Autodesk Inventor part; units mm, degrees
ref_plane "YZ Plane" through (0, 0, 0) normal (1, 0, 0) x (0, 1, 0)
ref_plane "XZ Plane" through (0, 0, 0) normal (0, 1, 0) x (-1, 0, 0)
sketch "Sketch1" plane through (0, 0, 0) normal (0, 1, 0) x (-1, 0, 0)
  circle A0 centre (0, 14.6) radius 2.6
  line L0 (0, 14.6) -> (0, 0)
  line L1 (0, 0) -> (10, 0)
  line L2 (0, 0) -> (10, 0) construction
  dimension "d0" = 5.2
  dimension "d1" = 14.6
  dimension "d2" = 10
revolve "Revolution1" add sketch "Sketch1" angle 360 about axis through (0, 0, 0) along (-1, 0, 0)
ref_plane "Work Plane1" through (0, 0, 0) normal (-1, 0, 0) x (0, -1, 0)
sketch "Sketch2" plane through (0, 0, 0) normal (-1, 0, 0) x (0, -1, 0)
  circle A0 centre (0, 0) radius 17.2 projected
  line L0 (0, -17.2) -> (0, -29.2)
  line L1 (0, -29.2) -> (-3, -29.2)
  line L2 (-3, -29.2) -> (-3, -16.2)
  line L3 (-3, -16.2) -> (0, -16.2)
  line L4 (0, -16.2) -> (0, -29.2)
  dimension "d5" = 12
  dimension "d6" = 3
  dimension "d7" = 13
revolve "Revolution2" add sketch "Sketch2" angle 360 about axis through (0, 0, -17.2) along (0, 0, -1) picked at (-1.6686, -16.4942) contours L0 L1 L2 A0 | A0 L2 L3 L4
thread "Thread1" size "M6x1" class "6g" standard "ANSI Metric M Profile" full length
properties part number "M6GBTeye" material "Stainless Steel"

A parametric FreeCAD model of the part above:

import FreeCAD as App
import Part
import Sketcher

V = App.Vector
Q = App.Units.Quantity


def add_polygon(sketch, points):
    """Adds a closed chain of lines whose ends are joined by coincident constraints."""
    first, n = sketch.GeometryCount, len(points)
    for a, b in zip(points, points[1:] + points[:1]):
        sketch.addGeometry(Part.LineSegment(App.Vector(*a, 0), App.Vector(*b, 0)), False)
    for i in range(n):
        sketch.addConstraint(Sketcher.Constraint("Coincident", first + i, 2, first + (i + 1) % n, 1))

doc = App.newDocument("Part")
params = doc.addObject("Spreadsheet::Sheet", "Params")
for row, (alias, value) in enumerate([
    ("sketch1_diameter", "5.2 mm"),
    ("revolution_angle", "360 deg"),
    ("sketch2_width", "3 mm"),
    ("sketch2_height", "13 mm"),
    ("revolution2_angle", "360 deg"),
], start=1):
    params.set(f"A{row}", alias)
    params.set(f"B{row}", "=" + value)
    params.setAlias(f"B{row}", alias)

body = doc.addObject("PartDesign::Body", "Body")

# Sketch on XZ plane
sketch1 = doc.addObject("Sketcher::SketchObject", "Sketch")
body.addObject(sketch1)
sketch1.AttachmentSupport = (doc.XZ_Plane, [""])
sketch1.MapMode = "FlatFace"
sketch1.addGeometry(Part.Circle(V(0, 14.6, 0), V(0, 0, 1), 2.6), False)
sketch1.addConstraint(Sketcher.Constraint("PointOnObject", 0, 3, -2))
sketch1.addConstraint(Sketcher.Constraint("Diameter", 0, Q("5.2 mm")))
sketch1.addConstraint(Sketcher.Constraint("DistanceY", -1, 1, 0, 3, Q("14.6 mm")))
sketch1.setExpression("Constraints[1]", "Params.sketch1_diameter")
revolution = doc.addObject("PartDesign::Revolution", "Revolution")
body.addObject(revolution)
revolution.Profile = sketch1
revolution.ReferenceAxis = (sketch1, ["H_Axis"])
revolution.setExpression("Angle", "Params.revolution_angle")

# Sketch on YZ plane
sketch2 = doc.addObject("Sketcher::SketchObject", "Sketch001")
body.addObject(sketch2)
sketch2.AttachmentSupport = (doc.YZ_Plane, [""])
sketch2.MapMode = "FlatFace"
add_polygon(sketch2, [(0, -29.2), (0, -16.2), (3, -16.2), (3, -29.2)])  # lines 0-3
sketch2.addConstraint(Sketcher.Constraint("Vertical", 0))
sketch2.addConstraint(Sketcher.Constraint("Horizontal", 1))
sketch2.addConstraint(Sketcher.Constraint("Vertical", 2))
sketch2.addConstraint(Sketcher.Constraint("Horizontal", 3))
sketch2.addConstraint(Sketcher.Constraint("PointOnObject", 0, 2, -2))
sketch2.addConstraint(Sketcher.Constraint("DistanceX", 1, 1, 1, 2, Q("3 mm")))
sketch2.addConstraint(Sketcher.Constraint("DistanceY", 0, 1, 0, 2, Q("13 mm")))
sketch2.addConstraint(Sketcher.Constraint("DistanceY", 0, 2, -1, 1, Q("16.2 mm")))
sketch2.setExpression("Constraints[9]", "Params.sketch2_width")
sketch2.setExpression("Constraints[10]", "Params.sketch2_height")
revolution2 = doc.addObject("PartDesign::Revolution", "Revolution001")
body.addObject(revolution2)
revolution2.Profile = sketch2
revolution2.ReferenceAxis = (sketch2, ["V_Axis"])
revolution2.setExpression("Angle", "Params.revolution2_angle")

doc.recompute()
